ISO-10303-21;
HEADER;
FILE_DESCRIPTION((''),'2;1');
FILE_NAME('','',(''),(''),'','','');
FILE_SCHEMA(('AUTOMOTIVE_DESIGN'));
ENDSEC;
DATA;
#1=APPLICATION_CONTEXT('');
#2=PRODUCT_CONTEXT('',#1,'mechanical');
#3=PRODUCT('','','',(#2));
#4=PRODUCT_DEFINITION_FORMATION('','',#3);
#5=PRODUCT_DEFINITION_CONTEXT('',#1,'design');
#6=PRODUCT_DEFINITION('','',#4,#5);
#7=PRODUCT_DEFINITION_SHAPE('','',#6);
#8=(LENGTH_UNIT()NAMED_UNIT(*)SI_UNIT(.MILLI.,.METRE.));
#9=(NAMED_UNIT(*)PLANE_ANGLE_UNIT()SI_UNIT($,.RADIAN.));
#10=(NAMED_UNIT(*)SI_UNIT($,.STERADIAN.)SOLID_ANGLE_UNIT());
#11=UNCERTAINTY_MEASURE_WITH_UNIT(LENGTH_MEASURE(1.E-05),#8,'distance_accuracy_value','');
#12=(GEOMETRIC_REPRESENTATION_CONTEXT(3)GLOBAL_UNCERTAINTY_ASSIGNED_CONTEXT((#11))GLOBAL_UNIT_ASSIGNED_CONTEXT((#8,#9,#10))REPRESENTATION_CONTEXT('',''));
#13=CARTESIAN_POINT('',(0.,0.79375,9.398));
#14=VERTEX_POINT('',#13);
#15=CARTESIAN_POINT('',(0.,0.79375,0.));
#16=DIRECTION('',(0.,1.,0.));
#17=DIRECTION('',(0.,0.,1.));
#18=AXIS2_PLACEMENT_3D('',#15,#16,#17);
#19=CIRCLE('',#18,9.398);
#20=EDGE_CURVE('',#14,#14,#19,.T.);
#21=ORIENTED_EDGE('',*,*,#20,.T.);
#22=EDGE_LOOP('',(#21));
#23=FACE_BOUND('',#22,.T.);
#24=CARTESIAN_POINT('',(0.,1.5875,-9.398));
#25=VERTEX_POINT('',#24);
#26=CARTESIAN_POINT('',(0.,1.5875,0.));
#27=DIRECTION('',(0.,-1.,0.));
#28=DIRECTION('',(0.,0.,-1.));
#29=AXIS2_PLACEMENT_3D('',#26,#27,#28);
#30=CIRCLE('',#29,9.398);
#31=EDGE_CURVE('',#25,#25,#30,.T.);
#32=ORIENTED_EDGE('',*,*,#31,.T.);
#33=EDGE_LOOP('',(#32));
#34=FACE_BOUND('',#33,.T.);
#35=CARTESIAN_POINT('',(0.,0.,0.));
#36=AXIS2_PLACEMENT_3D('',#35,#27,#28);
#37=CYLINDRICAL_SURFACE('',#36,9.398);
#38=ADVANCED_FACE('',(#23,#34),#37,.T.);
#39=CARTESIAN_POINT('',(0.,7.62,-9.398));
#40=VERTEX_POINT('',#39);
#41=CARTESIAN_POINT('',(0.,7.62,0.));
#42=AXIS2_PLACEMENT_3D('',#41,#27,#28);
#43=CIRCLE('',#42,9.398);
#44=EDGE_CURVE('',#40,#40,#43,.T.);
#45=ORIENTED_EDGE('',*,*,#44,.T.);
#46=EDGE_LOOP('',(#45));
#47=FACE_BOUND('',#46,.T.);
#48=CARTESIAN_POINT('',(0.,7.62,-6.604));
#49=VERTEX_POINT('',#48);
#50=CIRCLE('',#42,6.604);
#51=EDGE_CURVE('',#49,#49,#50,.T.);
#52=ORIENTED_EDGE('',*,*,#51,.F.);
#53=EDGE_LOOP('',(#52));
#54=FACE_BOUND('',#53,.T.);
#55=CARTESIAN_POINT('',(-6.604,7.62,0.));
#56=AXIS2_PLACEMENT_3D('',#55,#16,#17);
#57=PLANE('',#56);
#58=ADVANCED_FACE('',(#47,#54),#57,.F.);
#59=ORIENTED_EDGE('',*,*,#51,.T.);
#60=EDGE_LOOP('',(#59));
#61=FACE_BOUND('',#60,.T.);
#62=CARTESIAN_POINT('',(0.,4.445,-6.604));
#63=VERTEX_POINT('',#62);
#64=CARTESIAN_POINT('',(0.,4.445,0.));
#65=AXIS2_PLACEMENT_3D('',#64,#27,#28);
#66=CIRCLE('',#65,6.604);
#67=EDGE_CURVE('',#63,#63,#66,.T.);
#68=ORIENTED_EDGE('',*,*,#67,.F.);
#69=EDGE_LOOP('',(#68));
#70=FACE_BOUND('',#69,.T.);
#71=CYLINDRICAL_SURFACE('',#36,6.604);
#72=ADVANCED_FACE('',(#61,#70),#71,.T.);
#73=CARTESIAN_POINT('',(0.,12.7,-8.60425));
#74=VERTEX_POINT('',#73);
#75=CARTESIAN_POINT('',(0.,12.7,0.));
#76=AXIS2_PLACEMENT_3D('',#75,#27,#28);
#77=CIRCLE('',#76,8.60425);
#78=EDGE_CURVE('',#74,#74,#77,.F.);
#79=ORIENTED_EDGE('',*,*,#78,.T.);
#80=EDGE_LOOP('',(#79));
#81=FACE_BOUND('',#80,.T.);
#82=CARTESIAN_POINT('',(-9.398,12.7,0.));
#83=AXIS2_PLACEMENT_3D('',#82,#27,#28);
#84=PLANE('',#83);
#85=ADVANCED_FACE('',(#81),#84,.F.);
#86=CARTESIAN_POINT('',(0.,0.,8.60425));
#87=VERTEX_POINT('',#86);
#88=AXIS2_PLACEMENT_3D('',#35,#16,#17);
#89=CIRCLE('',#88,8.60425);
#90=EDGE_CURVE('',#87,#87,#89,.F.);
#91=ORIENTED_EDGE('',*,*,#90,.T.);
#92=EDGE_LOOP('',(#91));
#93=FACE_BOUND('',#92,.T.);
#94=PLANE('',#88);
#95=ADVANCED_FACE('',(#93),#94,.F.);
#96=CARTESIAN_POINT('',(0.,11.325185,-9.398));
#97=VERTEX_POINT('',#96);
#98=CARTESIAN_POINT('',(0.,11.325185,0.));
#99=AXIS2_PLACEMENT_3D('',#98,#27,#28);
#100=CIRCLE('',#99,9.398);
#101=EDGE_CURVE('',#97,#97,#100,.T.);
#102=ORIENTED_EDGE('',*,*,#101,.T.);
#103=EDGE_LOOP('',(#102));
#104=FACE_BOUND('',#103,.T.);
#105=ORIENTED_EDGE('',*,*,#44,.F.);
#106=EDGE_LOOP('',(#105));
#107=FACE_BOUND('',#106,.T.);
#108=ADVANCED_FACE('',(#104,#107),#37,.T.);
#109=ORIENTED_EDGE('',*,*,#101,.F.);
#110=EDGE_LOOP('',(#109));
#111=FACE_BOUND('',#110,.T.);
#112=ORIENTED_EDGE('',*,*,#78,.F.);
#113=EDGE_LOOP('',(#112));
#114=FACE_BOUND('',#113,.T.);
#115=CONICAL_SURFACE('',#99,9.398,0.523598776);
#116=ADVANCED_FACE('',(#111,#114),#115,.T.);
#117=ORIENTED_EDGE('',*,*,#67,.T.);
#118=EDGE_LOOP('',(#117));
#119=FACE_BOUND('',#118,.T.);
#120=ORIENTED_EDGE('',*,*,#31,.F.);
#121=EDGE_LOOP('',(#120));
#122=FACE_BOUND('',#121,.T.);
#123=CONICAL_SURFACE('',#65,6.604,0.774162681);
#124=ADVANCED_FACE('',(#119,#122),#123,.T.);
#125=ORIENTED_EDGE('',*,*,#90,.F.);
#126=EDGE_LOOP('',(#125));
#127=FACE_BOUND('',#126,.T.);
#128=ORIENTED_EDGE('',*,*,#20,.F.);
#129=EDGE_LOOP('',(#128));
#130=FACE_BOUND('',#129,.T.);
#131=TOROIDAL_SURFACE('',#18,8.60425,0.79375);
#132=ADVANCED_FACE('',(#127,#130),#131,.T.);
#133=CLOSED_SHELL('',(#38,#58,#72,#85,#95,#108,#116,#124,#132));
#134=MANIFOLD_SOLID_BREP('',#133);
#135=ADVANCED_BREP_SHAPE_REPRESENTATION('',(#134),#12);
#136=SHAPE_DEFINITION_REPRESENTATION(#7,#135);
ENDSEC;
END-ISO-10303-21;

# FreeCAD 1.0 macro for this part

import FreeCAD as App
import Part
import Sketcher
from FreeCAD import Vector
Q = App.Units.Quantity


def edges_at(feature, points):
    """Names of the edges that pass closest to the given points."""
    edges = feature.Shape.Edges
    near = lambda p: min(range(len(edges)), key=lambda i: edges[i].distToShape(Part.Vertex(*p))[0])
    return sorted({f"Edge{near(p) + 1}" for p in points})

doc = App.newDocument("Part")
body = doc.addObject("PartDesign::Body", "Body")

# Sketch on XY plane
sketch1 = doc.addObject("Sketcher::SketchObject", "Sketch")
body.addObject(sketch1)
sketch1.AttachmentSupport = (doc.XY_Plane, [""])
sketch1.MapMode = "FlatFace"
sketch1.addGeometry(Part.LineSegment(Vector(-9.398, 0, 0), Vector(0, 0, 0)), False)
sketch1.addGeometry(Part.LineSegment(Vector(0, 0, 0), Vector(0, 12.7, 0)), False)
sketch1.addGeometry(Part.LineSegment(Vector(0, 12.7, 0), Vector(-9.398, 12.7, 0)), False)
sketch1.addGeometry(Part.LineSegment(Vector(-9.398, 12.7, 0), Vector(-9.398, 7.62, 0)), False)
sketch1.addGeometry(Part.LineSegment(Vector(-9.398, 7.62, 0), Vector(-6.604, 7.62, 0)), False)
sketch1.addGeometry(Part.LineSegment(Vector(-6.604, 7.62, 0), Vector(-6.604, 4.445, 0)), False)
sketch1.addGeometry(Part.LineSegment(Vector(-6.604, 4.445, 0), Vector(-9.398, 1.5875, 0)), False)
sketch1.addGeometry(Part.LineSegment(Vector(-9.398, 1.5875, 0), Vector(-9.398, 0, 0)), False)
sketch1.addConstraint(Sketcher.Constraint("Coincident", 0, 2, 1, 1))
sketch1.addConstraint(Sketcher.Constraint("Coincident", 1, 2, 2, 1))
sketch1.addConstraint(Sketcher.Constraint("Coincident", 2, 2, 3, 1))
sketch1.addConstraint(Sketcher.Constraint("Coincident", 3, 2, 4, 1))
sketch1.addConstraint(Sketcher.Constraint("Coincident", 4, 2, 5, 1))
sketch1.addConstraint(Sketcher.Constraint("Coincident", 5, 2, 6, 1))
sketch1.addConstraint(Sketcher.Constraint("Coincident", 6, 2, 7, 1))
sketch1.addConstraint(Sketcher.Constraint("Coincident", 7, 2, 0, 1))
sketch1.addConstraint(Sketcher.Constraint("Horizontal", 0))
sketch1.addConstraint(Sketcher.Constraint("Vertical", 1))
sketch1.addConstraint(Sketcher.Constraint("Horizontal", 2))
sketch1.addConstraint(Sketcher.Constraint("Vertical", 3))
sketch1.addConstraint(Sketcher.Constraint("Horizontal", 4))
sketch1.addConstraint(Sketcher.Constraint("Vertical", 5))
sketch1.addConstraint(Sketcher.Constraint("Vertical", 7))
sketch1.addConstraint(Sketcher.Constraint("Coincident", 0, 2, -1, 1))
sketch1.addConstraint(Sketcher.Constraint("Vertical", 3, 2, 6, 2))
sketch1.addConstraint(Sketcher.Constraint("DistanceY", 1, 1, 1, 2, Q("0.5 in")))
sketch1.addConstraint(Sketcher.Constraint("DistanceY", 3, 2, 3, 1, Q("0.2 in")))
sketch1.addConstraint(Sketcher.Constraint("DistanceX", 0, 1, 0, 2, Q("0.37 in")))
sketch1.addConstraint(Sketcher.Constraint("DistanceX", 4, 1, 4, 2, Q("0.11 in")))
sketch1.addConstraint(Sketcher.Constraint("DistanceY", 5, 2, 5, 1, Q("0.125 in")))
sketch1.addConstraint(Sketcher.Constraint("DistanceY", 7, 2, 7, 1, Q("0.0625 in")))
revolution = doc.addObject("PartDesign::Revolution", "Revolution")
body.addObject(revolution)
revolution.Profile = sketch1
revolution.ReferenceAxis = (sketch1, ["V_Axis"])
revolution.Angle = 360
doc.recompute()

fillet = doc.addObject("PartDesign::Fillet", "Fillet")
body.addObject(fillet)
fillet.Base = (revolution, edges_at(revolution, [(9.398, 0, 0)]))
fillet.Radius = Q("0.03125 in")
doc.recompute()

chamfer = doc.addObject("PartDesign::Chamfer", "Chamfer")
body.addObject(chamfer)
chamfer.Base = (fillet, edges_at(fillet, [(9.398, 12.7, 0)]))
chamfer.ChamferType = "Two distances"
chamfer.Size = Q("0.03125 in")
chamfer.Size2 = 1.374815
chamfer.FlipDirection = True

doc.recompute()
